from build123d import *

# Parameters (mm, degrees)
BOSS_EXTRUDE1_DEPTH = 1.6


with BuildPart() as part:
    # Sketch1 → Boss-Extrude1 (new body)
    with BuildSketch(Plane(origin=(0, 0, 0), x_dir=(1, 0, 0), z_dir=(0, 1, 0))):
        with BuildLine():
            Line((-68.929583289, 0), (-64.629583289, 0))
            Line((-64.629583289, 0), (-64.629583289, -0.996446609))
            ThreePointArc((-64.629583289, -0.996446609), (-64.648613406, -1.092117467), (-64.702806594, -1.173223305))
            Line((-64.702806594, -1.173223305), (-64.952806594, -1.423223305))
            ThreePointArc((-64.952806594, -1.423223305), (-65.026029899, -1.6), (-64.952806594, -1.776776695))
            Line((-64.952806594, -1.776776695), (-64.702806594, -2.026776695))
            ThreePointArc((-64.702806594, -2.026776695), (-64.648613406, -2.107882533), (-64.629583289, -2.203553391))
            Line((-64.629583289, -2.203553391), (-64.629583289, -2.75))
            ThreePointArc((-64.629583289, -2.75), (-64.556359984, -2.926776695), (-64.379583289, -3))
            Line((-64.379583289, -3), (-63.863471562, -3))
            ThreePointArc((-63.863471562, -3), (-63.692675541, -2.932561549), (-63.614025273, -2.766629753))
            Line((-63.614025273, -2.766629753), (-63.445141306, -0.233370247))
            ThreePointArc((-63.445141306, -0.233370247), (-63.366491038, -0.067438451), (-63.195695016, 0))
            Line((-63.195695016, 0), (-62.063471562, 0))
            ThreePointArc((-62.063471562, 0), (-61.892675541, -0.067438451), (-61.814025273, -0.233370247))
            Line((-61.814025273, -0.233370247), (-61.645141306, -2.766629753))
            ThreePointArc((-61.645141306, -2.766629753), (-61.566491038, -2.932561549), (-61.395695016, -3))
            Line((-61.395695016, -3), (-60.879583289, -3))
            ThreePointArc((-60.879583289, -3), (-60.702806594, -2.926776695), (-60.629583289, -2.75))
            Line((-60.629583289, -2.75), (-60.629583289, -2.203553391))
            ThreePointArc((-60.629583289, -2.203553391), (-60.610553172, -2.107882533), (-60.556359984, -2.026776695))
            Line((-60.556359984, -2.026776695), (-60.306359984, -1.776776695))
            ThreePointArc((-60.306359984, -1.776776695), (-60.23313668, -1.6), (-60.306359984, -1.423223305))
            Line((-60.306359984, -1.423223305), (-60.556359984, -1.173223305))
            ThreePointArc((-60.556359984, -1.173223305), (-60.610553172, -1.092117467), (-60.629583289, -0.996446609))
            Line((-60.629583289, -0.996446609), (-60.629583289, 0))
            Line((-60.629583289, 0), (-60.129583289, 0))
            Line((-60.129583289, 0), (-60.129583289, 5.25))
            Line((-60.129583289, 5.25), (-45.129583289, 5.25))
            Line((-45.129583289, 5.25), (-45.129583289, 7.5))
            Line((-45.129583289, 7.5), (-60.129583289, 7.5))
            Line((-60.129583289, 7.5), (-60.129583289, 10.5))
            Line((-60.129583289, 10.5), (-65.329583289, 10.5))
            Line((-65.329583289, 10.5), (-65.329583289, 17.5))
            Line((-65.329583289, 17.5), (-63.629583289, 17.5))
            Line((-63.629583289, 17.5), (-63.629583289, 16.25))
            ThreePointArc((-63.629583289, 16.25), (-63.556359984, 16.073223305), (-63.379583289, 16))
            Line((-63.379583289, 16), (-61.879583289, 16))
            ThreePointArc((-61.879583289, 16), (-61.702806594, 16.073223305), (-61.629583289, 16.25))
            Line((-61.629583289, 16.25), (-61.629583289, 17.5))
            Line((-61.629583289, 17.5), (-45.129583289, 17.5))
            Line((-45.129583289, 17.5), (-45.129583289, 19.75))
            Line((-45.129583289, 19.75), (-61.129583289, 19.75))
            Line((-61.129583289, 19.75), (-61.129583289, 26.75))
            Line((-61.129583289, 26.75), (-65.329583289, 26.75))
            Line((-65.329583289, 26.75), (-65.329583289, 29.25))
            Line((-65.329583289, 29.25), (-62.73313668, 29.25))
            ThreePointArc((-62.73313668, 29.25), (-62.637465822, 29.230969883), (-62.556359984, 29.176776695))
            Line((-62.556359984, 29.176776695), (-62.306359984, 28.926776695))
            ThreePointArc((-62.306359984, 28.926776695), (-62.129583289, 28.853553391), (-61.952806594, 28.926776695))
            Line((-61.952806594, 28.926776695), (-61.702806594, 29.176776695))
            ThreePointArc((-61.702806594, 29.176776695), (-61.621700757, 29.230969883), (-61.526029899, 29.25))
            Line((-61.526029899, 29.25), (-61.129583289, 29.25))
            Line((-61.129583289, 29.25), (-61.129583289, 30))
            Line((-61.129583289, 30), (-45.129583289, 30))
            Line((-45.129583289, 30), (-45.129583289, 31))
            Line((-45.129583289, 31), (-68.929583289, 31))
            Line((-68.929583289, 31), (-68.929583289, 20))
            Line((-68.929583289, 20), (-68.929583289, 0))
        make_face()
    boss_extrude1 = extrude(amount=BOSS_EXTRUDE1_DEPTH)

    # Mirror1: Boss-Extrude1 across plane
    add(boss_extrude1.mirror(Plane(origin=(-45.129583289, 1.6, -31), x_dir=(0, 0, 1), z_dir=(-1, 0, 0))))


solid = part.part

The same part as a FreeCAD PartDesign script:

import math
import FreeCAD as App
import Part
import Sketcher
from FreeCAD import Vector
Q = App.Units.Quantity

doc = App.newDocument("Part")
body = doc.addObject("PartDesign::Body", "Body")

# Sketch on XZ plane
sketch1 = body.newObject("Sketcher::SketchObject", "Sketch")
sketch1.AttachmentSupport = (doc.getObject("XZ_Plane"), [""])
sketch1.MapMode = "FlatFace"
sketch1.addGeometry([
    Part.LineSegment(Vector(-68.93, 0, 0), Vector(-64.63, 0, 0)),  # 0
    Part.LineSegment(Vector(-64.63, 0, 0), Vector(-64.63, 1, 0)),  # 1
    Part.ArcOfCircle(Part.Circle(Vector(-64.88, 1, 0), Vector(0, 0, 1), 0.25), math.radians(0), math.radians(45)),  # 2
    Part.LineSegment(Vector(-64.7, 1.17, 0), Vector(-64.95, 1.42, 0)),  # 3
    Part.ArcOfCircle(Part.Circle(Vector(-64.78, 1.6, 0), Vector(0, 0, 1), 0.25), math.radians(135), math.radians(225)),  # 4
    Part.LineSegment(Vector(-64.95, 1.78, 0), Vector(-64.7, 2.03, 0)),  # 5
    Part.ArcOfCircle(Part.Circle(Vector(-64.88, 2.2, 0), Vector(0, 0, 1), 0.25), math.radians(-45), math.radians(0)),  # 6
    Part.LineSegment(Vector(-64.63, 2.2, 0), Vector(-64.63, 2.75, 0)),  # 7
    Part.ArcOfCircle(Part.Circle(Vector(-64.38, 2.75, 0), Vector(0, 0, 1), 0.25), math.radians(90), math.radians(180)),  # 8
    Part.LineSegment(Vector(-64.38, 3, 0), Vector(-63.86, 3, 0)),  # 9
    Part.ArcOfCircle(Part.Circle(Vector(-63.86, 2.75, 0), Vector(0, 0, 1), 0.25), math.radians(4), math.radians(90)),  # 10
    Part.LineSegment(Vector(-63.61, 2.77, 0), Vector(-63.45, 0.23, 0)),  # 11
    Part.ArcOfCircle(Part.Circle(Vector(-63.2, 0.25, 0), Vector(0, 0, 1), 0.25), math.radians(-176), math.radians(-90)),  # 12
    Part.LineSegment(Vector(-63.2, 0, 0), Vector(-62.06, 0, 0)),  # 13
    Part.ArcOfCircle(Part.Circle(Vector(-62.06, 0.25, 0), Vector(0, 0, 1), 0.25), math.radians(-90), math.radians(-4)),  # 14
    Part.LineSegment(Vector(-61.81, 0.23, 0), Vector(-61.65, 2.77, 0)),  # 15
    Part.ArcOfCircle(Part.Circle(Vector(-61.4, 2.75, 0), Vector(0, 0, 1), 0.25), math.radians(90), math.radians(176)),  # 16
    Part.LineSegment(Vector(-61.4, 3, 0), Vector(-60.88, 3, 0)),  # 17
    Part.ArcOfCircle(Part.Circle(Vector(-60.88, 2.75, 0), Vector(0, 0, 1), 0.25), math.radians(0), math.radians(90)),  # 18
    Part.LineSegment(Vector(-60.63, 2.75, 0), Vector(-60.63, 2.2, 0)),  # 19
    Part.ArcOfCircle(Part.Circle(Vector(-60.38, 2.2, 0), Vector(0, 0, 1), 0.25), math.radians(-180), math.radians(-135)),  # 20
    Part.LineSegment(Vector(-60.56, 2.03, 0), Vector(-60.31, 1.78, 0)),  # 21
    Part.ArcOfCircle(Part.Circle(Vector(-60.48, 1.6, 0), Vector(0, 0, 1), 0.25), math.radians(-45), math.radians(45)),  # 22
    Part.LineSegment(Vector(-60.31, 1.42, 0), Vector(-60.56, 1.17, 0)),  # 23
    Part.ArcOfCircle(Part.Circle(Vector(-60.38, 1, 0), Vector(0, 0, 1), 0.25), math.radians(135), math.radians(180)),  # 24
    Part.LineSegment(Vector(-60.63, 1, 0), Vector(-60.63, 0, 0)),  # 25
    Part.LineSegment(Vector(-60.63, 0, 0), Vector(-60.13, 0, 0)),  # 26
    Part.LineSegment(Vector(-60.13, 0, 0), Vector(-60.13, -5.25, 0)),  # 27
    Part.LineSegment(Vector(-60.13, -5.25, 0), Vector(-45.13, -5.25, 0)),  # 28
    Part.LineSegment(Vector(-45.13, -5.25, 0), Vector(-45.13, -7.5, 0)),  # 29
    Part.LineSegment(Vector(-45.13, -7.5, 0), Vector(-60.13, -7.5, 0)),  # 30
    Part.LineSegment(Vector(-60.13, -7.5, 0), Vector(-60.13, -10.5, 0)),  # 31
    Part.LineSegment(Vector(-60.13, -10.5, 0), Vector(-65.33, -10.5, 0)),  # 32
    Part.LineSegment(Vector(-65.33, -10.5, 0), Vector(-65.33, -17.5, 0)),  # 33
    Part.LineSegment(Vector(-65.33, -17.5, 0), Vector(-63.63, -17.5, 0)),  # 34
    Part.LineSegment(Vector(-63.63, -17.5, 0), Vector(-63.63, -16.25, 0)),  # 35
    Part.ArcOfCircle(Part.Circle(Vector(-63.38, -16.25, 0), Vector(0, 0, 1), 0.25), math.radians(90), math.radians(180)),  # 36
    Part.LineSegment(Vector(-63.38, -16, 0), Vector(-61.88, -16, 0)),  # 37
    Part.ArcOfCircle(Part.Circle(Vector(-61.88, -16.25, 0), Vector(0, 0, 1), 0.25), math.radians(0), math.radians(90)),  # 38
    Part.LineSegment(Vector(-61.63, -16.25, 0), Vector(-61.63, -17.5, 0)),  # 39
    Part.LineSegment(Vector(-61.63, -17.5, 0), Vector(-45.13, -17.5, 0)),  # 40
    Part.LineSegment(Vector(-45.13, -17.5, 0), Vector(-45.13, -19.75, 0)),  # 41
    Part.LineSegment(Vector(-45.13, -19.75, 0), Vector(-61.13, -19.75, 0)),  # 42
    Part.LineSegment(Vector(-61.13, -19.75, 0), Vector(-61.13, -26.75, 0)),  # 43
    Part.LineSegment(Vector(-61.13, -26.75, 0), Vector(-65.33, -26.75, 0)),  # 44
    Part.LineSegment(Vector(-65.33, -26.75, 0), Vector(-65.33, -29.25, 0)),  # 45
    Part.LineSegment(Vector(-65.33, -29.25, 0), Vector(-62.73, -29.25, 0)),  # 46
    Part.ArcOfCircle(Part.Circle(Vector(-62.73, -29, 0), Vector(0, 0, 1), 0.25), math.radians(-90), math.radians(-45)),  # 47
    Part.LineSegment(Vector(-62.56, -29.18, 0), Vector(-62.31, -28.93, 0)),  # 48
    Part.ArcOfCircle(Part.Circle(Vector(-62.13, -29.1, 0), Vector(0, 0, 1), 0.25), math.radians(45), math.radians(135)),  # 49
    Part.LineSegment(Vector(-61.95, -28.93, 0), Vector(-61.7, -29.18, 0)),  # 50
    Part.ArcOfCircle(Part.Circle(Vector(-61.53, -29, 0), Vector(0, 0, 1), 0.25), math.radians(-135), math.radians(-90)),  # 51
    Part.LineSegment(Vector(-61.53, -29.25, 0), Vector(-61.13, -29.25, 0)),  # 52
    Part.LineSegment(Vector(-61.13, -29.25, 0), Vector(-61.13, -30, 0)),  # 53
    Part.LineSegment(Vector(-61.13, -30, 0), Vector(-45.13, -30, 0)),  # 54
    Part.LineSegment(Vector(-45.13, -30, 0), Vector(-45.13, -31, 0)),  # 55
    Part.LineSegment(Vector(-45.13, -31, 0), Vector(-68.93, -31, 0)),  # 56
    Part.LineSegment(Vector(-68.93, -31, 0), Vector(-68.93, 0, 0)),  # 57
], False)
sketch1.addConstraint([
    Sketcher.Constraint("Coincident", 0, 2, 1, 1),
    Sketcher.Constraint("Tangent", 1, 2, 2, 1),
    Sketcher.Constraint("Tangent", 2, 2, 3, 1),
    Sketcher.Constraint("Tangent", 3, 2, 4, 2),
    Sketcher.Constraint("Tangent", 4, 1, 5, 1),
    Sketcher.Constraint("Tangent", 5, 2, 6, 1),
    Sketcher.Constraint("Tangent", 6, 2, 7, 1),
    Sketcher.Constraint("Tangent", 7, 2, 8, 2),
    Sketcher.Constraint("Tangent", 8, 1, 9, 1),
    Sketcher.Constraint("Tangent", 9, 2, 10, 2),
    Sketcher.Constraint("Tangent", 10, 1, 11, 1),
    Sketcher.Constraint("Tangent", 11, 2, 12, 1),
    Sketcher.Constraint("Tangent", 12, 2, 13, 1),
    Sketcher.Constraint("Tangent", 13, 2, 14, 1),
    Sketcher.Constraint("Tangent", 14, 2, 15, 1),
    Sketcher.Constraint("Tangent", 15, 2, 16, 2),
    Sketcher.Constraint("Tangent", 16, 1, 17, 1),
    Sketcher.Constraint("Tangent", 17, 2, 18, 2),
    Sketcher.Constraint("Tangent", 18, 1, 19, 1),
    Sketcher.Constraint("Tangent", 19, 2, 20, 1),
    Sketcher.Constraint("Tangent", 20, 2, 21, 1),
    Sketcher.Constraint("Tangent", 21, 2, 22, 2),
    Sketcher.Constraint("Tangent", 22, 1, 23, 1),
    Sketcher.Constraint("Tangent", 23, 2, 24, 1),
    Sketcher.Constraint("Tangent", 24, 2, 25, 1),
    Sketcher.Constraint("Coincident", 25, 2, 26, 1),
    Sketcher.Constraint("Coincident", 26, 2, 27, 1),
    Sketcher.Constraint("Coincident", 27, 2, 28, 1),
    Sketcher.Constraint("Coincident", 28, 2, 29, 1),
    Sketcher.Constraint("Coincident", 29, 2, 30, 1),
    Sketcher.Constraint("Coincident", 30, 2, 31, 1),
    Sketcher.Constraint("Coincident", 31, 2, 32, 1),
    Sketcher.Constraint("Coincident", 32, 2, 33, 1),
    Sketcher.Constraint("Coincident", 33, 2, 34, 1),
    Sketcher.Constraint("Coincident", 34, 2, 35, 1),
    Sketcher.Constraint("Tangent", 35, 2, 36, 2),
    Sketcher.Constraint("Tangent", 36, 1, 37, 1),
    Sketcher.Constraint("Tangent", 37, 2, 38, 2),
    Sketcher.Constraint("Tangent", 38, 1, 39, 1),
    Sketcher.Constraint("Coincident", 39, 2, 40, 1),
    Sketcher.Constraint("Coincident", 40, 2, 41, 1),
    Sketcher.Constraint("Coincident", 41, 2, 42, 1),
    Sketcher.Constraint("Coincident", 42, 2, 43, 1),
    Sketcher.Constraint("Coincident", 43, 2, 44, 1),
    Sketcher.Constraint("Coincident", 44, 2, 45, 1),
    Sketcher.Constraint("Coincident", 45, 2, 46, 1),
    Sketcher.Constraint("Tangent", 46, 2, 47, 1),
    Sketcher.Constraint("Tangent", 47, 2, 48, 1),
    Sketcher.Constraint("Tangent", 48, 2, 49, 2),
    Sketcher.Constraint("Tangent", 49, 1, 50, 1),
    Sketcher.Constraint("Tangent", 50, 2, 51, 1),
    Sketcher.Constraint("Tangent", 51, 2, 52, 1),
    Sketcher.Constraint("Coincident", 52, 2, 53, 1),
    Sketcher.Constraint("Coincident", 53, 2, 54, 1),
    Sketcher.Constraint("Coincident", 54, 2, 55, 1),
    Sketcher.Constraint("Coincident", 55, 2, 56, 1),
    Sketcher.Constraint("Coincident", 56, 2, 57, 1),
    Sketcher.Constraint("Coincident", 57, 2, 0, 1),
    Sketcher.Constraint("Horizontal", 0),
    Sketcher.Constraint("Vertical", 1),
    Sketcher.Constraint("Vertical", 7),
    Sketcher.Constraint("Horizontal", 9),
    Sketcher.Constraint("Horizontal", 13),
    Sketcher.Constraint("Horizontal", 17),
    Sketcher.Constraint("Vertical", 19),
    Sketcher.Constraint("Vertical", 25),
    Sketcher.Constraint("Horizontal", 26),
    Sketcher.Constraint("Vertical", 27),
    Sketcher.Constraint("Horizontal", 28),
    Sketcher.Constraint("Vertical", 29),
    Sketcher.Constraint("Horizontal", 30),
    Sketcher.Constraint("Vertical", 31),
    Sketcher.Constraint("Horizontal", 32),
    Sketcher.Constraint("Vertical", 33),
    Sketcher.Constraint("Horizontal", 34),
    Sketcher.Constraint("Vertical", 35),
    Sketcher.Constraint("Horizontal", 37),
    Sketcher.Constraint("Vertical", 39),
    Sketcher.Constraint("Horizontal", 40),
    Sketcher.Constraint("Vertical", 41),
    Sketcher.Constraint("Horizontal", 42),
    Sketcher.Constraint("Vertical", 43),
    Sketcher.Constraint("Horizontal", 44),
    Sketcher.Constraint("Vertical", 45),
    Sketcher.Constraint("Horizontal", 46),
    Sketcher.Constraint("Horizontal", 52),
    Sketcher.Constraint("Vertical", 53),
    Sketcher.Constraint("Horizontal", 54),
    Sketcher.Constraint("Vertical", 55),
    Sketcher.Constraint("Horizontal", 56),
    Sketcher.Constraint("Vertical", 57),
    Sketcher.Constraint("Equal", 2, 4),
    Sketcher.Constraint("Equal", 4, 6),
    Sketcher.Constraint("Equal", 6, 8),
    Sketcher.Constraint("Equal", 8, 10),
    Sketcher.Constraint("Equal", 10, 12),
    Sketcher.Constraint("Equal", 12, 14),
    Sketcher.Constraint("Equal", 14, 16),
    Sketcher.Constraint("Equal", 16, 18),
    Sketcher.Constraint("Equal", 18, 20),
    Sketcher.Constraint("Equal", 20, 22),
    Sketcher.Constraint("Equal", 22, 24),
    Sketcher.Constraint("Equal", 24, 36),
    Sketcher.Constraint("Equal", 36, 38),
    Sketcher.Constraint("Equal", 38, 47),
    Sketcher.Constraint("Equal", 47, 49),
    Sketcher.Constraint("Equal", 49, 51),
    Sketcher.Constraint("PointOnObject", 0, 2, -1),
    Sketcher.Constraint("PointOnObject", 12, 2, -1),
    Sketcher.Constraint("PointOnObject", 25, 2, -1),
    Sketcher.Constraint("Perpendicular", 3, 5),
    Sketcher.Constraint("Perpendicular", 5, 21),
    Sketcher.Constraint("Perpendicular", 21, 23),
    Sketcher.Constraint("Parallel", 23, 48),
    Sketcher.Constraint("Perpendicular", 48, 50),
    Sketcher.Constraint("Horizontal", 10, 3, 16, 3),
    Sketcher.Constraint("Horizontal", 6, 3, 20, 3),
    Sketcher.Constraint("Horizontal", 4, 3, 22, 3),
    Sketcher.Constraint("Horizontal", 2, 3, 24, 3),
    Sketcher.Constraint("Horizontal", 47, 3, 51, 3),
    Sketcher.Constraint("Horizontal", 11, 2, 14, 2),
    Sketcher.Constraint("Horizontal", 5, 2, 20, 2),
    Sketcher.Constraint("Horizontal", 34, 2, 39, 2),
    Sketcher.Constraint("Vertical", 2, 3, 6, 3),
    Sketcher.Constraint("Vertical", 27, 2, 30, 2),
    Sketcher.Constraint("Vertical", 29, 2, 40, 2),
    Sketcher.Constraint("Vertical", 33, 2, 44, 2),
    Sketcher.Constraint("Vertical", 43, 2, 52, 2),
    Sketcher.Constraint("Vertical", 41, 2, 54, 2),
    Sketcher.Constraint("Equal", 9, 17),
    Sketcher.Constraint("Equal", 29, 41),
    Sketcher.Constraint("Equal", 33, 43),
    Sketcher.Constraint("Equal", 23, 48),
    Sketcher.Constraint("DistanceX", 28, 1, 28, 2, Q("15 mm")),
    Sketcher.Constraint("DistanceX", 42, 2, 42, 1, Q("16 mm")),
    Sketcher.Constraint("DistanceY", 31, 2, 31, 1, Q("3 mm")),
    Sketcher.Constraint("DistanceY", 33, 2, 33, 1, Q("7 mm")),
    Sketcher.Constraint("DistanceY", 55, 2, 55, 1, Q("1 mm")),
    Sketcher.Constraint("DistanceY", 57, 1, 57, 2, Q("31 mm")),
    Sketcher.Constraint("Radius", 2, Q("0.25 mm")),
    Sketcher.Constraint("DistanceX", 0, 1, 0, 2, Q("4.3 mm")),
    Sketcher.Constraint("DistanceX", 26, 1, 26, 2, Q("0.5 mm")),
    Sketcher.Constraint("DistanceX", 32, 2, 32, 1, Q("5.2 mm")),
    Sketcher.Constraint("DistanceX", 34, 1, 34, 2, Q("1.7 mm")),
    Sketcher.Constraint("DistanceX", 37, 1, 37, 2, Q("1.5 mm")),
    Sketcher.Constraint("DistanceX", 56, 2, 56, 1, Q("23.8 mm")),
    Sketcher.Constraint("DistanceY", 45, 2, 45, 1, Q("2.5 mm")),
    Sketcher.Constraint("DistanceY", 47, 3, -1, 1, Q("29 mm")),
    Sketcher.Constraint("DistanceY", -1, 1, 8, 1, Q("3 mm")),
    Sketcher.Constraint("DistanceY", 36, 1, -1, 1, Q("16 mm")),
    Sketcher.Constraint("DistanceY", 27, 2, 27, 1, Q("5.25 mm")),
    Sketcher.Constraint("DistanceY", -1, 1, 4, 3, Q("1.6 mm")),
    Sketcher.Constraint("DistanceX", 9, 1, 9, 2, Q("0.516112 mm")),
    Sketcher.Constraint("DistanceX", 13, 1, 13, 2, Q("1.132223 mm")),
    Sketcher.Constraint("DistanceX", 46, 1, 46, 2, Q("2.596447 mm")),
    Sketcher.Constraint("DistanceX", 52, 1, 52, 2, Q("0.396447 mm")),
    Sketcher.Constraint("DistanceX", 4, 3, -1, 1, Q("64.77603 mm")),
])
pad1 = body.newObject("PartDesign::Pad", "Pad")
pad1.Profile = sketch1
pad1.Length = 1.6
pad1.Reversed = True
doc.recompute()

datumplane = body.newObject("PartDesign::Plane", "DatumPlane")
datumplane.AttachmentSupport = (doc.getObject("YZ_Plane"), [""])
datumplane.MapMode = "FlatFace"
datumplane.AttachmentOffset = App.Placement(Vector(0, 0, -45.129583), App.Rotation())
mirrored = body.newObject("PartDesign::Mirrored", "Mirrored")
mirrored.Originals = [pad1]
mirrored.MirrorPlane = (datumplane, [""])
body.Tip = mirrored

doc.recompute()
